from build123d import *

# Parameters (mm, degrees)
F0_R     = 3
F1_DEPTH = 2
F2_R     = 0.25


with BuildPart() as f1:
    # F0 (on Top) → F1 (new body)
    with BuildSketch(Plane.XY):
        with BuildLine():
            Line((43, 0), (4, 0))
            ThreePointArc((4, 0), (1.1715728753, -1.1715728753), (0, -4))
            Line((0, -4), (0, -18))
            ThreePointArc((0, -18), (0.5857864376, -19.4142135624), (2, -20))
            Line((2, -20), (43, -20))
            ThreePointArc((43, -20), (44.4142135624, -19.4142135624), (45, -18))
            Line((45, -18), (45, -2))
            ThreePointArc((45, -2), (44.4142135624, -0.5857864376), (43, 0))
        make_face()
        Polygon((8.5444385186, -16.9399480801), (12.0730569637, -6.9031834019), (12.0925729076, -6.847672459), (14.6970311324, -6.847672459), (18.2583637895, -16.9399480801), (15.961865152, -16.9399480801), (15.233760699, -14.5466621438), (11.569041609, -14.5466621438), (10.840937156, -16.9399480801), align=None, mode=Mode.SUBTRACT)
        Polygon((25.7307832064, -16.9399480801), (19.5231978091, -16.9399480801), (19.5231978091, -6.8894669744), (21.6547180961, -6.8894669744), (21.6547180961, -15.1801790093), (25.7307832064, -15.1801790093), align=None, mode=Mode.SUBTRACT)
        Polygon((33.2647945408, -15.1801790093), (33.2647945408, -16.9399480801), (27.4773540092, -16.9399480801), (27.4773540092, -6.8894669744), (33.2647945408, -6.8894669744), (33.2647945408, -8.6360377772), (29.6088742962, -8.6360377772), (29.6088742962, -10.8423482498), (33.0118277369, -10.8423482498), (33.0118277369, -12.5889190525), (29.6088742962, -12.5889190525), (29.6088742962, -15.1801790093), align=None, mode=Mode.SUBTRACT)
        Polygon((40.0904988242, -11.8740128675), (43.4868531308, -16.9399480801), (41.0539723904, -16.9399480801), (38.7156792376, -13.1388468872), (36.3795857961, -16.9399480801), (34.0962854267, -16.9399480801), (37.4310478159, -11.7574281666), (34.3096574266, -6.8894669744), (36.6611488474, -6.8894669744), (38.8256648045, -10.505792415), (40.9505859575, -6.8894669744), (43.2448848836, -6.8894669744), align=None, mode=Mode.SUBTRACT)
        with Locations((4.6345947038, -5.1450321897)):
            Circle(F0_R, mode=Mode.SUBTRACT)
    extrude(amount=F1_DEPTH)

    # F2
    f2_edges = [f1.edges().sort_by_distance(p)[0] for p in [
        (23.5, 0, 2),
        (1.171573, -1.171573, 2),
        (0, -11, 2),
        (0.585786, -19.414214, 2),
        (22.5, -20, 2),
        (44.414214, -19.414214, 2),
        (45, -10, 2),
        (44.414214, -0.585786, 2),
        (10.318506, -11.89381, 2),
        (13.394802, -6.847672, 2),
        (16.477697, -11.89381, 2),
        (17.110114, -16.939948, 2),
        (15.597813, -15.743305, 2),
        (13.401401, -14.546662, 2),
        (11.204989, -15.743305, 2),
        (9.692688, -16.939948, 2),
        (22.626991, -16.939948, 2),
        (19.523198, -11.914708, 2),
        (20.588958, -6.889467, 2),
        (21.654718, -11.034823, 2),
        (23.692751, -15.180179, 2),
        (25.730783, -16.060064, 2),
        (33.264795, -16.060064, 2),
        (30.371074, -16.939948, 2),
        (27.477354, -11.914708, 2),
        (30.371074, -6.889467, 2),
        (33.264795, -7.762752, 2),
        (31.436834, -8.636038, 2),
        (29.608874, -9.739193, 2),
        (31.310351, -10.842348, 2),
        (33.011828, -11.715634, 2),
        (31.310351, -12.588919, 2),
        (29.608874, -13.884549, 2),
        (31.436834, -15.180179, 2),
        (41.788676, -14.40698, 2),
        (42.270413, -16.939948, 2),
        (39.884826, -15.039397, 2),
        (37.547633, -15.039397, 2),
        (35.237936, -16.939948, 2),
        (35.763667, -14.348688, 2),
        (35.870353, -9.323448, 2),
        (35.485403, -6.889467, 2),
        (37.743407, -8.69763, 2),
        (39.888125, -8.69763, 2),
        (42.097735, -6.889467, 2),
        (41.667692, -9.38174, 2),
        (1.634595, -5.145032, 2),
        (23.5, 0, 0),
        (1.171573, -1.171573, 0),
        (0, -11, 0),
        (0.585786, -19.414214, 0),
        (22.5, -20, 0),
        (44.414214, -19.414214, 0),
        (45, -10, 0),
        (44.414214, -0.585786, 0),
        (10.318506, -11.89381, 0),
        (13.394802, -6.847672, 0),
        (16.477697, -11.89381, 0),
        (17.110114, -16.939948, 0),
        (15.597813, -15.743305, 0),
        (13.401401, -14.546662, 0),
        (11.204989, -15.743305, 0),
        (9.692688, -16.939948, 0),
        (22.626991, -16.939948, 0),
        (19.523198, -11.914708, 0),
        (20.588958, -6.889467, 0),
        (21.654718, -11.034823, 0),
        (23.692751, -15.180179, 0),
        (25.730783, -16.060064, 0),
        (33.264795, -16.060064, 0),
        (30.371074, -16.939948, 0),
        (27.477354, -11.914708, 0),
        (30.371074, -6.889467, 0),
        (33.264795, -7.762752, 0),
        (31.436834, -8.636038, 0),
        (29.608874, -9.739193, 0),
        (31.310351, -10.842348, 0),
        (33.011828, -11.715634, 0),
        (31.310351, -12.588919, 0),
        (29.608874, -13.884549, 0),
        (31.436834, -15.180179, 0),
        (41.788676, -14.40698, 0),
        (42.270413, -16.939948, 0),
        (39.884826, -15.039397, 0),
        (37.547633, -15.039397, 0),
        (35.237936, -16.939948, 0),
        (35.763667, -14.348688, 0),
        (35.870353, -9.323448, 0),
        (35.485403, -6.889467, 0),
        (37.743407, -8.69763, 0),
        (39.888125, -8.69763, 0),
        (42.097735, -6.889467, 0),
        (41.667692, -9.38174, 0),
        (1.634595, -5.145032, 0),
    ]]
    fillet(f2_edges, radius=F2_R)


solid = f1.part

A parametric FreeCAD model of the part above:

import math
import FreeCAD as App
import Part
import Sketcher
Q = App.Units.Quantity


def edges_at(feature, points):
    """Names of the edges that pass closest to the given points."""
    edges = feature.Shape.Edges
    near = lambda p: min(range(len(edges)), key=lambda i: edges[i].distToShape(Part.Vertex(*p))[0])
    return sorted({f"Edge{near(p) + 1}" for p in points})

doc = App.newDocument("Part")
body = doc.addObject("PartDesign::Body", "Body")

# Sketch on XY plane
sketch1 = body.newObject("Sketcher::SketchObject", "Sketch")
sketch1.AttachmentSupport = (doc.getObject("XY_Plane"), [""])
sketch1.MapMode = "FlatFace"
sketch1.addGeometry(Part.LineSegment(App.Vector(43, 0, 0), App.Vector(4, 0, 0)), False)
sketch1.addGeometry(Part.ArcOfCircle(Part.Circle(App.Vector(4, -4, 0), App.Vector(0, 0, 1), 4), math.radians(90), math.radians(180)), False)
sketch1.addGeometry(Part.LineSegment(App.Vector(0, -4, 0), App.Vector(0, -18, 0)), False)
sketch1.addGeometry(Part.ArcOfCircle(Part.Circle(App.Vector(2, -18, 0), App.Vector(0, 0, 1), 2), math.radians(180), math.radians(270)), False)
sketch1.addGeometry(Part.LineSegment(App.Vector(2, -20, 0), App.Vector(43, -20, 0)), False)
sketch1.addGeometry(Part.ArcOfCircle(Part.Circle(App.Vector(43, -18, 0), App.Vector(0, 0, 1), 2), math.radians(-90), math.radians(0)), False)
sketch1.addGeometry(Part.LineSegment(App.Vector(45, -18, 0), App.Vector(45, -2, 0)), False)
sketch1.addGeometry(Part.ArcOfCircle(Part.Circle(App.Vector(43, -2, 0), App.Vector(0, 0, 1), 2), math.radians(0), math.radians(90)), False)
sketch1.addGeometry(Part.LineSegment(App.Vector(10.84, -16.94, 0), App.Vector(8.54, -16.94, 0)), False)
sketch1.addGeometry(Part.LineSegment(App.Vector(8.54, -16.94, 0), App.Vector(12.07, -6.9, 0)), False)
sketch1.addGeometry(Part.LineSegment(App.Vector(12.07, -6.9, 0), App.Vector(12.09, -6.85, 0)), False)
sketch1.addGeometry(Part.LineSegment(App.Vector(12.09, -6.85, 0), App.Vector(14.7, -6.85, 0)), False)
sketch1.addGeometry(Part.LineSegment(App.Vector(14.7, -6.85, 0), App.Vector(18.26, -16.94, 0)), False)
sketch1.addGeometry(Part.LineSegment(App.Vector(18.26, -16.94, 0), App.Vector(15.96, -16.94, 0)), False)
sketch1.addGeometry(Part.LineSegment(App.Vector(15.96, -16.94, 0), App.Vector(15.23, -14.55, 0)), False)
sketch1.addGeometry(Part.LineSegment(App.Vector(15.23, -14.55, 0), App.Vector(11.57, -14.55, 0)), False)
sketch1.addGeometry(Part.LineSegment(App.Vector(11.57, -14.55, 0), App.Vector(10.84, -16.94, 0)), False)
sketch1.addGeometry(Part.LineSegment(App.Vector(25.73, -15.18, 0), App.Vector(25.73, -16.94, 0)), False)
sketch1.addGeometry(Part.LineSegment(App.Vector(25.73, -16.94, 0), App.Vector(19.52, -16.94, 0)), False)
sketch1.addGeometry(Part.LineSegment(App.Vector(19.52, -16.94, 0), App.Vector(19.52, -6.89, 0)), False)
sketch1.addGeometry(Part.LineSegment(App.Vector(19.52, -6.89, 0), App.Vector(21.65, -6.89, 0)), False)
sketch1.addGeometry(Part.LineSegment(App.Vector(21.65, -6.89, 0), App.Vector(21.65, -15.18, 0)), False)
sketch1.addGeometry(Part.LineSegment(App.Vector(21.65, -15.18, 0), App.Vector(25.73, -15.18, 0)), False)
sketch1.addGeometry(Part.LineSegment(App.Vector(29.61, -15.18, 0), App.Vector(33.26, -15.18, 0)), False)
sketch1.addGeometry(Part.LineSegment(App.Vector(33.26, -15.18, 0), App.Vector(33.26, -16.94, 0)), False)
sketch1.addGeometry(Part.LineSegment(App.Vector(33.26, -16.94, 0), App.Vector(27.48, -16.94, 0)), False)
sketch1.addGeometry(Part.LineSegment(App.Vector(27.48, -16.94, 0), App.Vector(27.48, -6.89, 0)), False)
sketch1.addGeometry(Part.LineSegment(App.Vector(27.48, -6.89, 0), App.Vector(33.26, -6.89, 0)), False)
sketch1.addGeometry(Part.LineSegment(App.Vector(33.26, -6.89, 0), App.Vector(33.26, -8.64, 0)), False)
sketch1.addGeometry(Part.LineSegment(App.Vector(33.26, -8.64, 0), App.Vector(29.61, -8.64, 0)), False)
sketch1.addGeometry(Part.LineSegment(App.Vector(29.61, -8.64, 0), App.Vector(29.61, -10.84, 0)), False)
sketch1.addGeometry(Part.LineSegment(App.Vector(29.61, -10.84, 0), App.Vector(33.01, -10.84, 0)), False)
sketch1.addGeometry(Part.LineSegment(App.Vector(33.01, -10.84, 0), App.Vector(33.01, -12.59, 0)), False)
sketch1.addGeometry(Part.LineSegment(App.Vector(33.01, -12.59, 0), App.Vector(29.61, -12.59, 0)), False)
sketch1.addGeometry(Part.LineSegment(App.Vector(29.61, -12.59, 0), App.Vector(29.61, -15.18, 0)), False)
sketch1.addGeometry(Part.LineSegment(App.Vector(43.24, -6.89, 0), App.Vector(40.09, -11.87, 0)), False)
sketch1.addGeometry(Part.LineSegment(App.Vector(40.09, -11.87, 0), App.Vector(43.49, -16.94, 0)), False)
sketch1.addGeometry(Part.LineSegment(App.Vector(43.49, -16.94, 0), App.Vector(41.05, -16.94, 0)), False)
sketch1.addGeometry(Part.LineSegment(App.Vector(41.05, -16.94, 0), App.Vector(38.72, -13.14, 0)), False)
sketch1.addGeometry(Part.LineSegment(App.Vector(38.72, -13.14, 0), App.Vector(36.38, -16.94, 0)), False)
sketch1.addGeometry(Part.LineSegment(App.Vector(36.38, -16.94, 0), App.Vector(34.1, -16.94, 0)), False)
sketch1.addGeometry(Part.LineSegment(App.Vector(34.1, -16.94, 0), App.Vector(37.43, -11.76, 0)), False)
sketch1.addGeometry(Part.LineSegment(App.Vector(37.43, -11.76, 0), App.Vector(34.31, -6.89, 0)), False)
sketch1.addGeometry(Part.LineSegment(App.Vector(34.31, -6.89, 0), App.Vector(36.66, -6.89, 0)), False)
sketch1.addGeometry(Part.LineSegment(App.Vector(36.66, -6.89, 0), App.Vector(38.83, -10.51, 0)), False)
sketch1.addGeometry(Part.LineSegment(App.Vector(38.83, -10.51, 0), App.Vector(40.95, -6.89, 0)), False)
sketch1.addGeometry(Part.LineSegment(App.Vector(40.95, -6.89, 0), App.Vector(43.24, -6.89, 0)), False)
sketch1.addGeometry(Part.Circle(App.Vector(4.63, -5.15, 0), App.Vector(0, 0, 1), 3), False)
sketch1.addConstraint(Sketcher.Constraint("Tangent", 0, 2, 1, 1))
sketch1.addConstraint(Sketcher.Constraint("Tangent", 1, 2, 2, 1))
sketch1.addConstraint(Sketcher.Constraint("Tangent", 2, 2, 3, 1))
sketch1.addConstraint(Sketcher.Constraint("Tangent", 3, 2, 4, 1))
sketch1.addConstraint(Sketcher.Constraint("Tangent", 4, 2, 5, 1))
sketch1.addConstraint(Sketcher.Constraint("Tangent", 5, 2, 6, 1))
sketch1.addConstraint(Sketcher.Constraint("Tangent", 6, 2, 7, 1))
sketch1.addConstraint(Sketcher.Constraint("Tangent", 7, 2, 0, 1))
sketch1.addConstraint(Sketcher.Constraint("Coincident", 8, 2, 9, 1))
sketch1.addConstraint(Sketcher.Constraint("Coincident", 9, 2, 10, 1))
sketch1.addConstraint(Sketcher.Constraint("Coincident", 10, 2, 11, 1))
sketch1.addConstraint(Sketcher.Constraint("Coincident", 11, 2, 12, 1))
sketch1.addConstraint(Sketcher.Constraint("Coincident", 12, 2, 13, 1))
sketch1.addConstraint(Sketcher.Constraint("Coincident", 13, 2, 14, 1))
sketch1.addConstraint(Sketcher.Constraint("Coincident", 14, 2, 15, 1))
sketch1.addConstraint(Sketcher.Constraint("Coincident", 15, 2, 16, 1))
sketch1.addConstraint(Sketcher.Constraint("Coincident", 16, 2, 8, 1))
sketch1.addConstraint(Sketcher.Constraint("Coincident", 17, 2, 18, 1))
sketch1.addConstraint(Sketcher.Constraint("Coincident", 18, 2, 19, 1))
sketch1.addConstraint(Sketcher.Constraint("Coincident", 19, 2, 20, 1))
sketch1.addConstraint(Sketcher.Constraint("Coincident", 20, 2, 21, 1))
sketch1.addConstraint(Sketcher.Constraint("Coincident", 21, 2, 22, 1))
sketch1.addConstraint(Sketcher.Constraint("Coincident", 22, 2, 17, 1))
sketch1.addConstraint(Sketcher.Constraint("Coincident", 23, 2, 24, 1))
sketch1.addConstraint(Sketcher.Constraint("Coincident", 24, 2, 25, 1))
sketch1.addConstraint(Sketcher.Constraint("Coincident", 25, 2, 26, 1))
sketch1.addConstraint(Sketcher.Constraint("Coincident", 26, 2, 27, 1))
sketch1.addConstraint(Sketcher.Constraint("Coincident", 27, 2, 28, 1))
sketch1.addConstraint(Sketcher.Constraint("Coincident", 28, 2, 29, 1))
sketch1.addConstraint(Sketcher.Constraint("Coincident", 29, 2, 30, 1))
sketch1.addConstraint(Sketcher.Constraint("Coincident", 30, 2, 31, 1))
sketch1.addConstraint(Sketcher.Constraint("Coincident", 31, 2, 32, 1))
sketch1.addConstraint(Sketcher.Constraint("Coincident", 32, 2, 33, 1))
sketch1.addConstraint(Sketcher.Constraint("Coincident", 33, 2, 34, 1))
sketch1.addConstraint(Sketcher.Constraint("Coincident", 34, 2, 23, 1))
sketch1.addConstraint(Sketcher.Constraint("Coincident", 35, 2, 36, 1))
sketch1.addConstraint(Sketcher.Constraint("Coincident", 36, 2, 37, 1))
sketch1.addConstraint(Sketcher.Constraint("Coincident", 37, 2, 38, 1))
sketch1.addConstraint(Sketcher.Constraint("Coincident", 38, 2, 39, 1))
sketch1.addConstraint(Sketcher.Constraint("Coincident", 39, 2, 40, 1))
sketch1.addConstraint(Sketcher.Constraint("Coincident", 40, 2, 41, 1))
sketch1.addConstraint(Sketcher.Constraint("Coincident", 41, 2, 42, 1))
sketch1.addConstraint(Sketcher.Constraint("Coincident", 42, 2, 43, 1))
sketch1.addConstraint(Sketcher.Constraint("Coincident", 43, 2, 44, 1))
sketch1.addConstraint(Sketcher.Constraint("Coincident", 44, 2, 45, 1))
sketch1.addConstraint(Sketcher.Constraint("Coincident", 45, 2, 46, 1))
sketch1.addConstraint(Sketcher.Constraint("Coincident", 46, 2, 35, 1))
sketch1.addConstraint(Sketcher.Constraint("Horizontal", 0))
sketch1.addConstraint(Sketcher.Constraint("Vertical", 2))
sketch1.addConstraint(Sketcher.Constraint("Horizontal", 4))
sketch1.addConstraint(Sketcher.Constraint("Vertical", 6))
sketch1.addConstraint(Sketcher.Constraint("Horizontal", 8))
sketch1.addConstraint(Sketcher.Constraint("Horizontal", 11))
sketch1.addConstraint(Sketcher.Constraint("Horizontal", 13))
sketch1.addConstraint(Sketcher.Constraint("Horizontal", 15))
sketch1.addConstraint(Sketcher.Constraint("Vertical", 17))
sketch1.addConstraint(Sketcher.Constraint("Horizontal", 18))
sketch1.addConstraint(Sketcher.Constraint("Vertical", 19))
sketch1.addConstraint(Sketcher.Constraint("Horizontal", 20))
sketch1.addConstraint(Sketcher.Constraint("Vertical", 21))
sketch1.addConstraint(Sketcher.Constraint("Horizontal", 22))
sketch1.addConstraint(Sketcher.Constraint("Horizontal", 23))
sketch1.addConstraint(Sketcher.Constraint("Vertical", 24))
sketch1.addConstraint(Sketcher.Constraint("Horizontal", 25))
sketch1.addConstraint(Sketcher.Constraint("Vertical", 26))
sketch1.addConstraint(Sketcher.Constraint("Horizontal", 27))
sketch1.addConstraint(Sketcher.Constraint("Vertical", 28))
sketch1.addConstraint(Sketcher.Constraint("Horizontal", 29))
sketch1.addConstraint(Sketcher.Constraint("Vertical", 30))
sketch1.addConstraint(Sketcher.Constraint("Horizontal", 31))
sketch1.addConstraint(Sketcher.Constraint("Vertical", 32))
sketch1.addConstraint(Sketcher.Constraint("Horizontal", 33))
sketch1.addConstraint(Sketcher.Constraint("Vertical", 34))
sketch1.addConstraint(Sketcher.Constraint("Horizontal", 37))
sketch1.addConstraint(Sketcher.Constraint("Horizontal", 40))
sketch1.addConstraint(Sketcher.Constraint("Horizontal", 43))
sketch1.addConstraint(Sketcher.Constraint("Horizontal", 46))
sketch1.addConstraint(Sketcher.Constraint("Equal", 3, 5))
sketch1.addConstraint(Sketcher.Constraint("Equal", 5, 7))
sketch1.addConstraint(Sketcher.Constraint("PointOnObject", 0, 2, -1))
sketch1.addConstraint(Sketcher.Constraint("PointOnObject", 1, 2, -2))
sketch1.addConstraint(Sketcher.Constraint("Parallel", 9, 10))
sketch1.addConstraint(Sketcher.Constraint("Horizontal", 8, 2, 12, 2))
sketch1.addConstraint(Sketcher.Constraint("Horizontal", 16, 2, 17, 2))
sketch1.addConstraint(Sketcher.Constraint("Horizontal", 22, 2, 23, 2))
sketch1.addConstraint(Sketcher.Constraint("Horizontal", 18, 2, 24, 2))
sketch1.addConstraint(Sketcher.Constraint("Horizontal", 20, 2, 26, 2))
sketch1.addConstraint(Sketcher.Constraint("Horizontal", 25, 2, 36, 2))
sketch1.addConstraint(Sketcher.Constraint("Horizontal", 37, 2, 39, 2))
sketch1.addConstraint(Sketcher.Constraint("Horizontal", 27, 2, 42, 2))
sketch1.addConstraint(Sketcher.Constraint("Horizontal", 43, 2, 45, 2))
sketch1.addConstraint(Sketcher.Constraint("Vertical", 24, 2, 27, 2))
sketch1.addConstraint(Sketcher.Constraint("Vertical", 30, 2, 33, 2))
sketch1.addConstraint(Sketcher.Constraint("Equal", 8, 13))
sketch1.addConstraint(Sketcher.Constraint("Equal", 28, 32))
sketch1.addConstraint(Sketcher.Constraint("Equal", 14, 16))
sketch1.addConstraint(Sketcher.Constraint("Diameter", 47, Q("6 mm")))
sketch1.addConstraint(Sketcher.Constraint("Radius", 1, Q("4 mm")))
sketch1.addConstraint(Sketcher.Constraint("Radius", 3, Q("2 mm")))
sketch1.addConstraint(Sketcher.Constraint("DistanceX", 0, 2, 0, 1, Q("39 mm")))
sketch1.addConstraint(Sketcher.Constraint("DistanceY", 2, 2, 2, 1, Q("14 mm")))
sketch1.addConstraint(Sketcher.Constraint("DistanceX", 8, 2, 8, 1, Q("2.296499 mm")))
sketch1.addConstraint(Sketcher.Constraint("DistanceX", 40, 2, 40, 1, Q("2.2833 mm")))
sketch1.addConstraint(Sketcher.Constraint("DistanceX", 46, 1, 46, 2, Q("2.294299 mm")))
sketch1.addConstraint(Sketcher.Constraint("Distance", 12, Q("10.702202 mm")))
sketch1.addConstraint(Sketcher.Constraint("Distance", 35, Q("5.898801 mm")))
sketch1.addConstraint(Sketcher.Constraint("DistanceX", 11, 1, 11, 2, Q("2.604458 mm")))
sketch1.addConstraint(Sketcher.Constraint("DistanceX", 15, 2, 15, 1, Q("3.664719 mm")))
sketch1.addConstraint(Sketcher.Constraint("DistanceX", 20, 1, 20, 2, Q("2.13152 mm")))
sketch1.addConstraint(Sketcher.Constraint("DistanceX", 23, 1, 23, 2, Q("3.65592 mm")))
sketch1.addConstraint(Sketcher.Constraint("DistanceX", 25, 2, 25, 1, Q("5.787441 mm")))
sketch1.addConstraint(Sketcher.Constraint("DistanceX", 37, 2, 37, 1, Q("2.432881 mm")))
sketch1.addConstraint(Sketcher.Constraint("DistanceX", 43, 1, 43, 2, Q("2.351491 mm")))
sketch1.addConstraint(Sketcher.Constraint("DistanceY", 17, 2, 17, 1, Q("1.759769 mm")))
sketch1.addConstraint(Sketcher.Constraint("DistanceY", 19, 1, 19, 2, Q("10.050481 mm")))
sketch1.addConstraint(Sketcher.Constraint("DistanceY", 28, 2, 28, 1, Q("1.746571 mm")))
sketch1.addConstraint(Sketcher.Constraint("DistanceY", 30, 2, 30, 1, Q("2.20631 mm")))
sketch1.addConstraint(Sketcher.Constraint("DistanceX", -1, 1, 35, 2, Q("40.090499 mm")))
sketch1.addConstraint(Sketcher.Constraint("DistanceY", 37, 2, 38, 2, Q("3.801101 mm")))
sketch1.addConstraint(Sketcher.Constraint("DistanceX", 43, 2, 41, 2, Q("0.769899 mm")))
sketch1.addConstraint(Sketcher.Constraint("Distance", 10, Q("0.058842 mm")))
sketch1.addConstraint(Sketcher.Constraint("Distance", 14, Q("2.50159 mm")))
sketch1.addConstraint(Sketcher.Constraint("Distance", 36, Q("6.099092 mm")))
sketch1.addConstraint(Sketcher.Constraint("Distance", 39, Q("4.461581 mm")))
sketch1.addConstraint(Sketcher.Constraint("Distance", 44, Q("4.21461 mm")))
sketch1.addConstraint(Sketcher.Constraint("DistanceX", 18, 2, 18, 1, Q("6.207585 mm")))
sketch1.addConstraint(Sketcher.Constraint("DistanceX", 31, 1, 31, 2, Q("3.402953 mm")))
sketch1.addConstraint(Sketcher.Constraint("DistanceX", -1, 1, 8, 2, Q("8.544439 mm")))
sketch1.addConstraint(Sketcher.Constraint("DistanceY", 8, 2, -1, 1, Q("16.939948 mm")))
sketch1.addConstraint(Sketcher.Constraint("DistanceX", -1, 1, 11, 2, Q("14.697031 mm")))
sketch1.addConstraint(Sketcher.Constraint("DistanceX", -1, 1, 14, 2, Q("15.233761 mm")))
sketch1.addConstraint(Sketcher.Constraint("DistanceX", -1, 1, 20, 2, Q("21.654718 mm")))
sketch1.addConstraint(Sketcher.Constraint("DistanceX", -1, 1, 38, 2, Q("38.715679 mm")))
sketch1.addConstraint(Sketcher.Constraint("DistanceY", 41, 2, -1, 1, Q("11.757428 mm")))
sketch1.addConstraint(Sketcher.Constraint("DistanceX", -1, 1, 43, 2, Q("36.661149 mm")))
sketch1.addConstraint(Sketcher.Constraint("DistanceY", 9, 2, 47, 3, Q("1.758151 mm")))
sketch1.addConstraint(Sketcher.Constraint("DistanceX", 47, 3, 10, 2, Q("7.457978 mm")))
sketch1.addConstraint(Sketcher.Constraint("DistanceX", 22, 2, 23, 2, Q("7.534011 mm")))
sketch1.addConstraint(Sketcher.Constraint("DistanceX", 24, 2, 36, 2, Q("10.222059 mm")))
sketch1.addConstraint(Sketcher.Constraint("DistanceY", 35, 2, 44, 2, Q("1.36822 mm")))
pad1 = body.newObject("PartDesign::Pad", "Pad")
pad1.Profile = sketch1
pad1.Length = 2
doc.recompute()

fillet = body.newObject("PartDesign::Fillet", "Fillet")
fillet.Base = (pad1, edges_at(pad1, [
    (23.5, 0, 2),
    (1.172, -1.172, 2),
    (0, -11, 2),
    (0.586, -19.414, 2),
    (22.5, -20, 2),
    (44.414, -19.414, 2),
    (45, -10, 2),
    (44.414, -0.586, 2),
    (10.309, -11.922, 2),
    (13.395, -6.848, 2),
    (16.478, -11.894, 2),
    (17.11, -16.94, 2),
    (15.598, -15.743, 2),
    (13.401, -14.547, 2),
    (11.205, -15.743, 2),
    (9.693, -16.94, 2),
    (22.627, -16.94, 2),
    (19.523, -11.915, 2),
    (20.589, -6.889, 2),
    (21.655, -11.035, 2),
    (23.693, -15.18, 2),
    (25.731, -16.06, 2),
    (33.265, -16.06, 2),
    (30.371, -16.94, 2),
    (27.477, -11.915, 2),
    (30.371, -6.889, 2),
    (33.265, -7.763, 2),
    (31.437, -8.636, 2),
    (29.609, -9.739, 2),
    (31.31, -10.842, 2),
    (33.012, -11.716, 2),
    (31.31, -12.589, 2),
    (29.609, -13.885, 2),
    (31.437, -15.18, 2),
    (41.789, -14.407, 2),
    (42.27, -16.94, 2),
    (39.885, -15.039, 2),
    (37.548, -15.039, 2),
    (35.238, -16.94, 2),
    (35.764, -14.349, 2),
    (35.87, -9.323, 2),
    (35.485, -6.889, 2),
    (37.743, -8.698, 2),
    (39.888, -8.698, 2),
    (42.098, -6.889, 2),
    (41.668, -9.382, 2),
    (1.635, -5.145, 2),
    (23.5, 0, 0),
    (1.172, -1.172, 0),
    (0, -11, 0),
    (0.586, -19.414, 0),
    (22.5, -20, 0),
    (44.414, -19.414, 0),
    (45, -10, 0),
    (44.414, -0.586, 0),
    (10.309, -11.922, 0),
    (13.395, -6.848, 0),
    (16.478, -11.894, 0),
    (17.11, -16.94, 0),
    (15.598, -15.743, 0),
    (13.401, -14.547, 0),
    (11.205, -15.743, 0),
    (9.693, -16.94, 0),
    (22.627, -16.94, 0),
    (19.523, -11.915, 0),
    (20.589, -6.889, 0),
    (21.655, -11.035, 0),
    (23.693, -15.18, 0),
    (25.731, -16.06, 0),
    (33.265, -16.06, 0),
    (30.371, -16.94, 0),
    (27.477, -11.915, 0),
    (30.371, -6.889, 0),
    (33.265, -7.763, 0),
    (31.437, -8.636, 0),
    (29.609, -9.739, 0),
    (31.31, -10.842, 0),
    (33.012, -11.716, 0),
    (31.31, -12.589, 0),
    (29.609, -13.885, 0),
    (31.437, -15.18, 0),
    (41.789, -14.407, 0),
    (42.27, -16.94, 0),
    (39.885, -15.039, 0),
    (37.548, -15.039, 0),
    (35.238, -16.94, 0),
    (35.764, -14.349, 0),
    (35.87, -9.323, 0),
    (35.485, -6.889, 0),
    (37.743, -8.698, 0),
    (39.888, -8.698, 0),
    (42.098, -6.889, 0),
    (41.668, -9.382, 0),
    (1.635, -5.145, 0),
]))
fillet.Radius = 0.25

doc.recompute()
